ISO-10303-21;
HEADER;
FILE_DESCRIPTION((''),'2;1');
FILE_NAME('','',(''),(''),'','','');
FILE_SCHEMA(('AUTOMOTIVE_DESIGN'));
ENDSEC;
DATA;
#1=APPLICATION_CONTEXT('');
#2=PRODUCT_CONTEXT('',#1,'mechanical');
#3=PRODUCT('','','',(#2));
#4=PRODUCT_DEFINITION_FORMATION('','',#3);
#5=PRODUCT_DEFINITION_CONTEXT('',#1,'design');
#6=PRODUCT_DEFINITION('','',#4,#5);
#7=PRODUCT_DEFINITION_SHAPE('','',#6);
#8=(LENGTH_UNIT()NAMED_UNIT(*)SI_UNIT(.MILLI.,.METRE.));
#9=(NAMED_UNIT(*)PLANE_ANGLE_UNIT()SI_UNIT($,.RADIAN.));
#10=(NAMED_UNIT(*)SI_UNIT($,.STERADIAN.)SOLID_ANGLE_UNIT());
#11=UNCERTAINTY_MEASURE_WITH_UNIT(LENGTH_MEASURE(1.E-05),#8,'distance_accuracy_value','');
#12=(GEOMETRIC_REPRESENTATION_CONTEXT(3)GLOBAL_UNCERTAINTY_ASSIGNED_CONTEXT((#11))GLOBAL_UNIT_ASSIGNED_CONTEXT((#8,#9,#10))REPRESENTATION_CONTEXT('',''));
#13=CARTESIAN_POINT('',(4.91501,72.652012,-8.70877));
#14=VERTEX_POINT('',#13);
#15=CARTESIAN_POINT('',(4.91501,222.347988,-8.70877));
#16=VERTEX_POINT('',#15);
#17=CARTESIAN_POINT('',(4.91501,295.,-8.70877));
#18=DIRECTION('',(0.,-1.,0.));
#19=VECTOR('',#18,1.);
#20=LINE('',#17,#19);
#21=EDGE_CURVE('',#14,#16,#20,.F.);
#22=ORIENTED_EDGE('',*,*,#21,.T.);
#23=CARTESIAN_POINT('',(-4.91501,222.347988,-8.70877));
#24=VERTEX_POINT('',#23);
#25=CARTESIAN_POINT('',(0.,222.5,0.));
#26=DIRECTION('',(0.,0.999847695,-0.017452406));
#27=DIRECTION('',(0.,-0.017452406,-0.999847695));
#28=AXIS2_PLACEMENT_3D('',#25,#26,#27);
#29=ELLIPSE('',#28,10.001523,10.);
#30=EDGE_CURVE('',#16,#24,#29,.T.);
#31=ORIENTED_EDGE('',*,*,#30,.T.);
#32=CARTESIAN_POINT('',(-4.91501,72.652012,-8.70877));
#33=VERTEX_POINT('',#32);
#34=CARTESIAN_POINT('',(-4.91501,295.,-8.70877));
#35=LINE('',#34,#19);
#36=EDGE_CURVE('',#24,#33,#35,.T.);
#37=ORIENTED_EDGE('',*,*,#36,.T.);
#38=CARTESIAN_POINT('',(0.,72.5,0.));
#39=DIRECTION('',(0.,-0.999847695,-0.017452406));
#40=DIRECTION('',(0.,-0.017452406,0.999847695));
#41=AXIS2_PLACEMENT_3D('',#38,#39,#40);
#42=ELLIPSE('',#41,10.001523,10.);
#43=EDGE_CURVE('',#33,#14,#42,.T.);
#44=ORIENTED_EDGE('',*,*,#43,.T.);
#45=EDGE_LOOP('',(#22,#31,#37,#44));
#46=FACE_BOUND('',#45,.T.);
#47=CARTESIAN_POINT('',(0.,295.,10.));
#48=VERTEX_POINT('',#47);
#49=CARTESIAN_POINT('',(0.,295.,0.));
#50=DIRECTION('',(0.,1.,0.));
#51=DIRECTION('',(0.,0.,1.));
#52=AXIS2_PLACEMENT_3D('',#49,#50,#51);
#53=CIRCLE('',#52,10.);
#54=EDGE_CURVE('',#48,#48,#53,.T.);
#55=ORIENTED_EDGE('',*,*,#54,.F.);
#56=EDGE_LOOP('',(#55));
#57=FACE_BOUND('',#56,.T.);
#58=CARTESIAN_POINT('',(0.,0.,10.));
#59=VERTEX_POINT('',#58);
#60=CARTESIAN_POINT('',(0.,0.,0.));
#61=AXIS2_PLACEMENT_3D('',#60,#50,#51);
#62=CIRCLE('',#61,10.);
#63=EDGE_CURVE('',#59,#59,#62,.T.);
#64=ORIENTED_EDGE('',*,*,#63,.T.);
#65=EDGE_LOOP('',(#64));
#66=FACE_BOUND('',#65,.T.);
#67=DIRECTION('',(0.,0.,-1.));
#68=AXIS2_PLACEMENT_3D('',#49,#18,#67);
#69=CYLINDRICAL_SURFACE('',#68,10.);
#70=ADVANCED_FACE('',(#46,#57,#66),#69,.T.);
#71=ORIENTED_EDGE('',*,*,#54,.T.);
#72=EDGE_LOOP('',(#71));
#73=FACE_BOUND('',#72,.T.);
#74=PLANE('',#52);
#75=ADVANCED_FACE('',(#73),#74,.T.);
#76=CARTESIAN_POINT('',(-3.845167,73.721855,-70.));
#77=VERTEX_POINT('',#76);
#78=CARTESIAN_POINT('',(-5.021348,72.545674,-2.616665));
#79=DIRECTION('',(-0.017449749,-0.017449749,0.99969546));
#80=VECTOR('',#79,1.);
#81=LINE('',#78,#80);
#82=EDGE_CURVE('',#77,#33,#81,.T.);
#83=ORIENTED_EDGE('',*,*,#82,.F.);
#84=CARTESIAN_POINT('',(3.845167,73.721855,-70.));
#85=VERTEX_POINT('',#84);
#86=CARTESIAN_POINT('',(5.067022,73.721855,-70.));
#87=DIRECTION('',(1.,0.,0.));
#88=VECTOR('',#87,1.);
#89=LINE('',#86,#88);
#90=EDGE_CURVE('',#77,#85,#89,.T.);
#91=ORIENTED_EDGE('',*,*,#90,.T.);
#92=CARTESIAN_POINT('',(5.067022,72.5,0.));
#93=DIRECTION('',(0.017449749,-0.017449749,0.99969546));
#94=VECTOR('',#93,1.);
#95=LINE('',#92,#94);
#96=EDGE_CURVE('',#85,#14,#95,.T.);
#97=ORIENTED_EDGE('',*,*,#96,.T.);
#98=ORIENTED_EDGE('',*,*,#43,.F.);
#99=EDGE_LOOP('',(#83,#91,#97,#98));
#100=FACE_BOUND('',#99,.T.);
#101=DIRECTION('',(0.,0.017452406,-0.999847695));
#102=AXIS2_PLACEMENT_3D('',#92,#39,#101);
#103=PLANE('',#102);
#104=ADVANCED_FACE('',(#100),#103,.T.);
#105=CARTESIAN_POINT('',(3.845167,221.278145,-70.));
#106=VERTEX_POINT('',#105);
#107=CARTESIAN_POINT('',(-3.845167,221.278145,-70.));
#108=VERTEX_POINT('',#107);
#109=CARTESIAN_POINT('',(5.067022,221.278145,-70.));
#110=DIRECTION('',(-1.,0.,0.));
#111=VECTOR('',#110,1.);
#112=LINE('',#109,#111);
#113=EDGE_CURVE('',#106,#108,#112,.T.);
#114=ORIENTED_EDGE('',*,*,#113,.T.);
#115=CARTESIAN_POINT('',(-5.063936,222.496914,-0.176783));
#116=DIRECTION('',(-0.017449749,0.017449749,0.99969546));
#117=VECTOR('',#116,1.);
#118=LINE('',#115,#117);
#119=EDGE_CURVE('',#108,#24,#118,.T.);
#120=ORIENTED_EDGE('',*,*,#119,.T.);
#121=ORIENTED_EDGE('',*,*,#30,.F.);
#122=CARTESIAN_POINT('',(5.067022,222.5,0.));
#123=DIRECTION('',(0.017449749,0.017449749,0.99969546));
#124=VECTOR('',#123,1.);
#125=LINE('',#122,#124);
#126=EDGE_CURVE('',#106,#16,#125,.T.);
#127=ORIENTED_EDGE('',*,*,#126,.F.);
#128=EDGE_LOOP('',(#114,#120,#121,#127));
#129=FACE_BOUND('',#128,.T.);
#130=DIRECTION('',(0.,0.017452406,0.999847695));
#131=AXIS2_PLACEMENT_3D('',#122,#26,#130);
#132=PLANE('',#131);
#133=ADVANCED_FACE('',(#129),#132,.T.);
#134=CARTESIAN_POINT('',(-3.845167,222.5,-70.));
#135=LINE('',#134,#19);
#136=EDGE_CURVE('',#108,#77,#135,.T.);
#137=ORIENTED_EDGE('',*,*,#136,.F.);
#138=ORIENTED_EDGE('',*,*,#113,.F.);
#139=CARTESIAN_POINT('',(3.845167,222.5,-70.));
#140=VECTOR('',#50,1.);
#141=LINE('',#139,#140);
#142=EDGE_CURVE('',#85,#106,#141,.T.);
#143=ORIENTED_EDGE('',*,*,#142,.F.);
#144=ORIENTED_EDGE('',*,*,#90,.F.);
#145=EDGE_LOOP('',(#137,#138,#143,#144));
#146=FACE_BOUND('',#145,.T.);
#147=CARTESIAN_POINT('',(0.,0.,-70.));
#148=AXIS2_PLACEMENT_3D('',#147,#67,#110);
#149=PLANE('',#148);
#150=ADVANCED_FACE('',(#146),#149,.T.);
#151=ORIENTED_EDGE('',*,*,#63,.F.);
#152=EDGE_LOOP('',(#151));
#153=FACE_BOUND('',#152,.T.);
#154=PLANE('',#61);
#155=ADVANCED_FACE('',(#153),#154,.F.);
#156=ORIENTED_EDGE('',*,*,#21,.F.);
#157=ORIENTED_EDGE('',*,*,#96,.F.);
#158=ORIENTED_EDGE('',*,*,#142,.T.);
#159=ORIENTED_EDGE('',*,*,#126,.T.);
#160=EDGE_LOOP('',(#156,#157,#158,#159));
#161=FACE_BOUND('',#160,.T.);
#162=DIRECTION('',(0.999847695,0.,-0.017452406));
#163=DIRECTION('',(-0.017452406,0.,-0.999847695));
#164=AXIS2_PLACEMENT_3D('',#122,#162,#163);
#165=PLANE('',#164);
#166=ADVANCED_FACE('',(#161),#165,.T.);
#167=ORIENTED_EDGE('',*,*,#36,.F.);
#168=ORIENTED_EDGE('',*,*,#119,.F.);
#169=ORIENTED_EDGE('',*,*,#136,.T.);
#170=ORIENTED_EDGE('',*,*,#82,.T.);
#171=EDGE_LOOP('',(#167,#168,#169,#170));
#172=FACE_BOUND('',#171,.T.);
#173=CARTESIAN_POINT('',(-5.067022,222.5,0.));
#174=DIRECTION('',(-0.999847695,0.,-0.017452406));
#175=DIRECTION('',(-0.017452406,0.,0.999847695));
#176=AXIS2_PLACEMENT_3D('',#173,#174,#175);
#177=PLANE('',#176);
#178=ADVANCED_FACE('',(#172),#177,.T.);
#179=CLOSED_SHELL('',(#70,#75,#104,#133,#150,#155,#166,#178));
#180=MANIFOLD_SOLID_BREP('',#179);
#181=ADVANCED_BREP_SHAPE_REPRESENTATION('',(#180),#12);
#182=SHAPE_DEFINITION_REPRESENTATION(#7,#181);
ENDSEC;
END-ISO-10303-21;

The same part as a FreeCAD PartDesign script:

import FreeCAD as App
import Part
import Sketcher


def faces_at(feature, points):
    """Names of the faces that lie closest to the given points."""
    faces = feature.Shape.Faces
    near = lambda p: min(range(len(faces)), key=lambda i: faces[i].distToShape(Part.Vertex(*p))[0])
    return sorted({f"Face{near(p) + 1}" for p in points})


def add_polygon(sketch, points):
    """Adds a closed chain of lines whose ends are joined by coincident constraints."""
    first, n = sketch.GeometryCount, len(points)
    for a, b in zip(points, points[1:] + points[:1]):
        sketch.addGeometry(Part.LineSegment(App.Vector(*a, 0), App.Vector(*b, 0)), False)
    for i in range(n):
        sketch.addConstraint(Sketcher.Constraint("Coincident", first + i, 2, first + (i + 1) % n, 1))

doc = App.newDocument("Part")
body = doc.addObject("PartDesign::Body", "Body")

# Sketch on XZ plane
sketch1 = doc.addObject("Sketcher::SketchObject", "Sketch")
body.addObject(sketch1)
sketch1.AttachmentSupport = (doc.XZ_Plane, [""])
sketch1.MapMode = "FlatFace"
sketch1.addGeometry(Part.Circle(App.Vector(0, 0, 0), App.Vector(0, 0, 1), 10), False)
sketch1.addConstraint(Sketcher.Constraint("Coincident", 0, 3, -1, 1))
sketch1.addConstraint(Sketcher.Constraint("Diameter", 0, 20.0))
pad1 = doc.addObject("PartDesign::Pad", "Pad")
body.addObject(pad1)
pad1.Profile = sketch1
pad1.Length = 295
pad1.Reversed = True
body2 = doc.addObject("PartDesign::Body", "Body001")

# Sketch on XY plane
sketch2 = doc.addObject("Sketcher::SketchObject", "Sketch001")
body2.addObject(sketch2)
sketch2.AttachmentSupport = (doc.getObject("XY_Plane001"), [""])
sketch2.MapMode = "FlatFace"
add_polygon(sketch2, [(-5.067022, 222.5), (-5.067022, 72.5), (5.067022, 72.5), (5.067022, 222.5)])  # lines 0-3
sketch2.addConstraint(Sketcher.Constraint("Vertical", 0))
sketch2.addConstraint(Sketcher.Constraint("Horizontal", 1))
sketch2.addConstraint(Sketcher.Constraint("Vertical", 2))
sketch2.addConstraint(Sketcher.Constraint("Horizontal", 3))
sketch2.addConstraint(Sketcher.Constraint("DistanceY", 0, 2, 0, 1, 150.0))
sketch2.addConstraint(Sketcher.Constraint("DistanceY", -1, 1, 0, 2, 72.5))
sketch2.addConstraint(Sketcher.Constraint("DistanceX", 1, 1, 1, 2, 10.134044))
sketch2.addConstraint(Sketcher.Constraint("DistanceX", 0, 2, -1, 1, 5.067022))
pad2 = doc.addObject("PartDesign::Pad", "Pad001")
body2.addObject(pad2)
pad2.Profile = sketch2
pad2.Length = 70
pad2.Reversed = True
doc.recompute()

draft = doc.addObject("PartDesign::Draft", "Draft")
body2.addObject(draft)
draft.Base = (pad2, faces_at(pad2, [
    (0, 222.5, -35),
    (-5.067, 147.5, -35),
    (0, 72.5, -35),
    (5.067, 147.5, -35),
]))
draft.NeutralPlane = (doc.getObject("XY_Plane001"), [""])
draft.Angle = 1
draft.Reversed = True
doc.recompute()

boolean = doc.addObject("PartDesign::Boolean", "Boolean")
body.addObject(boolean)
boolean.Type = "Fuse"
boolean.addObjects([body2])

doc.recompute()
